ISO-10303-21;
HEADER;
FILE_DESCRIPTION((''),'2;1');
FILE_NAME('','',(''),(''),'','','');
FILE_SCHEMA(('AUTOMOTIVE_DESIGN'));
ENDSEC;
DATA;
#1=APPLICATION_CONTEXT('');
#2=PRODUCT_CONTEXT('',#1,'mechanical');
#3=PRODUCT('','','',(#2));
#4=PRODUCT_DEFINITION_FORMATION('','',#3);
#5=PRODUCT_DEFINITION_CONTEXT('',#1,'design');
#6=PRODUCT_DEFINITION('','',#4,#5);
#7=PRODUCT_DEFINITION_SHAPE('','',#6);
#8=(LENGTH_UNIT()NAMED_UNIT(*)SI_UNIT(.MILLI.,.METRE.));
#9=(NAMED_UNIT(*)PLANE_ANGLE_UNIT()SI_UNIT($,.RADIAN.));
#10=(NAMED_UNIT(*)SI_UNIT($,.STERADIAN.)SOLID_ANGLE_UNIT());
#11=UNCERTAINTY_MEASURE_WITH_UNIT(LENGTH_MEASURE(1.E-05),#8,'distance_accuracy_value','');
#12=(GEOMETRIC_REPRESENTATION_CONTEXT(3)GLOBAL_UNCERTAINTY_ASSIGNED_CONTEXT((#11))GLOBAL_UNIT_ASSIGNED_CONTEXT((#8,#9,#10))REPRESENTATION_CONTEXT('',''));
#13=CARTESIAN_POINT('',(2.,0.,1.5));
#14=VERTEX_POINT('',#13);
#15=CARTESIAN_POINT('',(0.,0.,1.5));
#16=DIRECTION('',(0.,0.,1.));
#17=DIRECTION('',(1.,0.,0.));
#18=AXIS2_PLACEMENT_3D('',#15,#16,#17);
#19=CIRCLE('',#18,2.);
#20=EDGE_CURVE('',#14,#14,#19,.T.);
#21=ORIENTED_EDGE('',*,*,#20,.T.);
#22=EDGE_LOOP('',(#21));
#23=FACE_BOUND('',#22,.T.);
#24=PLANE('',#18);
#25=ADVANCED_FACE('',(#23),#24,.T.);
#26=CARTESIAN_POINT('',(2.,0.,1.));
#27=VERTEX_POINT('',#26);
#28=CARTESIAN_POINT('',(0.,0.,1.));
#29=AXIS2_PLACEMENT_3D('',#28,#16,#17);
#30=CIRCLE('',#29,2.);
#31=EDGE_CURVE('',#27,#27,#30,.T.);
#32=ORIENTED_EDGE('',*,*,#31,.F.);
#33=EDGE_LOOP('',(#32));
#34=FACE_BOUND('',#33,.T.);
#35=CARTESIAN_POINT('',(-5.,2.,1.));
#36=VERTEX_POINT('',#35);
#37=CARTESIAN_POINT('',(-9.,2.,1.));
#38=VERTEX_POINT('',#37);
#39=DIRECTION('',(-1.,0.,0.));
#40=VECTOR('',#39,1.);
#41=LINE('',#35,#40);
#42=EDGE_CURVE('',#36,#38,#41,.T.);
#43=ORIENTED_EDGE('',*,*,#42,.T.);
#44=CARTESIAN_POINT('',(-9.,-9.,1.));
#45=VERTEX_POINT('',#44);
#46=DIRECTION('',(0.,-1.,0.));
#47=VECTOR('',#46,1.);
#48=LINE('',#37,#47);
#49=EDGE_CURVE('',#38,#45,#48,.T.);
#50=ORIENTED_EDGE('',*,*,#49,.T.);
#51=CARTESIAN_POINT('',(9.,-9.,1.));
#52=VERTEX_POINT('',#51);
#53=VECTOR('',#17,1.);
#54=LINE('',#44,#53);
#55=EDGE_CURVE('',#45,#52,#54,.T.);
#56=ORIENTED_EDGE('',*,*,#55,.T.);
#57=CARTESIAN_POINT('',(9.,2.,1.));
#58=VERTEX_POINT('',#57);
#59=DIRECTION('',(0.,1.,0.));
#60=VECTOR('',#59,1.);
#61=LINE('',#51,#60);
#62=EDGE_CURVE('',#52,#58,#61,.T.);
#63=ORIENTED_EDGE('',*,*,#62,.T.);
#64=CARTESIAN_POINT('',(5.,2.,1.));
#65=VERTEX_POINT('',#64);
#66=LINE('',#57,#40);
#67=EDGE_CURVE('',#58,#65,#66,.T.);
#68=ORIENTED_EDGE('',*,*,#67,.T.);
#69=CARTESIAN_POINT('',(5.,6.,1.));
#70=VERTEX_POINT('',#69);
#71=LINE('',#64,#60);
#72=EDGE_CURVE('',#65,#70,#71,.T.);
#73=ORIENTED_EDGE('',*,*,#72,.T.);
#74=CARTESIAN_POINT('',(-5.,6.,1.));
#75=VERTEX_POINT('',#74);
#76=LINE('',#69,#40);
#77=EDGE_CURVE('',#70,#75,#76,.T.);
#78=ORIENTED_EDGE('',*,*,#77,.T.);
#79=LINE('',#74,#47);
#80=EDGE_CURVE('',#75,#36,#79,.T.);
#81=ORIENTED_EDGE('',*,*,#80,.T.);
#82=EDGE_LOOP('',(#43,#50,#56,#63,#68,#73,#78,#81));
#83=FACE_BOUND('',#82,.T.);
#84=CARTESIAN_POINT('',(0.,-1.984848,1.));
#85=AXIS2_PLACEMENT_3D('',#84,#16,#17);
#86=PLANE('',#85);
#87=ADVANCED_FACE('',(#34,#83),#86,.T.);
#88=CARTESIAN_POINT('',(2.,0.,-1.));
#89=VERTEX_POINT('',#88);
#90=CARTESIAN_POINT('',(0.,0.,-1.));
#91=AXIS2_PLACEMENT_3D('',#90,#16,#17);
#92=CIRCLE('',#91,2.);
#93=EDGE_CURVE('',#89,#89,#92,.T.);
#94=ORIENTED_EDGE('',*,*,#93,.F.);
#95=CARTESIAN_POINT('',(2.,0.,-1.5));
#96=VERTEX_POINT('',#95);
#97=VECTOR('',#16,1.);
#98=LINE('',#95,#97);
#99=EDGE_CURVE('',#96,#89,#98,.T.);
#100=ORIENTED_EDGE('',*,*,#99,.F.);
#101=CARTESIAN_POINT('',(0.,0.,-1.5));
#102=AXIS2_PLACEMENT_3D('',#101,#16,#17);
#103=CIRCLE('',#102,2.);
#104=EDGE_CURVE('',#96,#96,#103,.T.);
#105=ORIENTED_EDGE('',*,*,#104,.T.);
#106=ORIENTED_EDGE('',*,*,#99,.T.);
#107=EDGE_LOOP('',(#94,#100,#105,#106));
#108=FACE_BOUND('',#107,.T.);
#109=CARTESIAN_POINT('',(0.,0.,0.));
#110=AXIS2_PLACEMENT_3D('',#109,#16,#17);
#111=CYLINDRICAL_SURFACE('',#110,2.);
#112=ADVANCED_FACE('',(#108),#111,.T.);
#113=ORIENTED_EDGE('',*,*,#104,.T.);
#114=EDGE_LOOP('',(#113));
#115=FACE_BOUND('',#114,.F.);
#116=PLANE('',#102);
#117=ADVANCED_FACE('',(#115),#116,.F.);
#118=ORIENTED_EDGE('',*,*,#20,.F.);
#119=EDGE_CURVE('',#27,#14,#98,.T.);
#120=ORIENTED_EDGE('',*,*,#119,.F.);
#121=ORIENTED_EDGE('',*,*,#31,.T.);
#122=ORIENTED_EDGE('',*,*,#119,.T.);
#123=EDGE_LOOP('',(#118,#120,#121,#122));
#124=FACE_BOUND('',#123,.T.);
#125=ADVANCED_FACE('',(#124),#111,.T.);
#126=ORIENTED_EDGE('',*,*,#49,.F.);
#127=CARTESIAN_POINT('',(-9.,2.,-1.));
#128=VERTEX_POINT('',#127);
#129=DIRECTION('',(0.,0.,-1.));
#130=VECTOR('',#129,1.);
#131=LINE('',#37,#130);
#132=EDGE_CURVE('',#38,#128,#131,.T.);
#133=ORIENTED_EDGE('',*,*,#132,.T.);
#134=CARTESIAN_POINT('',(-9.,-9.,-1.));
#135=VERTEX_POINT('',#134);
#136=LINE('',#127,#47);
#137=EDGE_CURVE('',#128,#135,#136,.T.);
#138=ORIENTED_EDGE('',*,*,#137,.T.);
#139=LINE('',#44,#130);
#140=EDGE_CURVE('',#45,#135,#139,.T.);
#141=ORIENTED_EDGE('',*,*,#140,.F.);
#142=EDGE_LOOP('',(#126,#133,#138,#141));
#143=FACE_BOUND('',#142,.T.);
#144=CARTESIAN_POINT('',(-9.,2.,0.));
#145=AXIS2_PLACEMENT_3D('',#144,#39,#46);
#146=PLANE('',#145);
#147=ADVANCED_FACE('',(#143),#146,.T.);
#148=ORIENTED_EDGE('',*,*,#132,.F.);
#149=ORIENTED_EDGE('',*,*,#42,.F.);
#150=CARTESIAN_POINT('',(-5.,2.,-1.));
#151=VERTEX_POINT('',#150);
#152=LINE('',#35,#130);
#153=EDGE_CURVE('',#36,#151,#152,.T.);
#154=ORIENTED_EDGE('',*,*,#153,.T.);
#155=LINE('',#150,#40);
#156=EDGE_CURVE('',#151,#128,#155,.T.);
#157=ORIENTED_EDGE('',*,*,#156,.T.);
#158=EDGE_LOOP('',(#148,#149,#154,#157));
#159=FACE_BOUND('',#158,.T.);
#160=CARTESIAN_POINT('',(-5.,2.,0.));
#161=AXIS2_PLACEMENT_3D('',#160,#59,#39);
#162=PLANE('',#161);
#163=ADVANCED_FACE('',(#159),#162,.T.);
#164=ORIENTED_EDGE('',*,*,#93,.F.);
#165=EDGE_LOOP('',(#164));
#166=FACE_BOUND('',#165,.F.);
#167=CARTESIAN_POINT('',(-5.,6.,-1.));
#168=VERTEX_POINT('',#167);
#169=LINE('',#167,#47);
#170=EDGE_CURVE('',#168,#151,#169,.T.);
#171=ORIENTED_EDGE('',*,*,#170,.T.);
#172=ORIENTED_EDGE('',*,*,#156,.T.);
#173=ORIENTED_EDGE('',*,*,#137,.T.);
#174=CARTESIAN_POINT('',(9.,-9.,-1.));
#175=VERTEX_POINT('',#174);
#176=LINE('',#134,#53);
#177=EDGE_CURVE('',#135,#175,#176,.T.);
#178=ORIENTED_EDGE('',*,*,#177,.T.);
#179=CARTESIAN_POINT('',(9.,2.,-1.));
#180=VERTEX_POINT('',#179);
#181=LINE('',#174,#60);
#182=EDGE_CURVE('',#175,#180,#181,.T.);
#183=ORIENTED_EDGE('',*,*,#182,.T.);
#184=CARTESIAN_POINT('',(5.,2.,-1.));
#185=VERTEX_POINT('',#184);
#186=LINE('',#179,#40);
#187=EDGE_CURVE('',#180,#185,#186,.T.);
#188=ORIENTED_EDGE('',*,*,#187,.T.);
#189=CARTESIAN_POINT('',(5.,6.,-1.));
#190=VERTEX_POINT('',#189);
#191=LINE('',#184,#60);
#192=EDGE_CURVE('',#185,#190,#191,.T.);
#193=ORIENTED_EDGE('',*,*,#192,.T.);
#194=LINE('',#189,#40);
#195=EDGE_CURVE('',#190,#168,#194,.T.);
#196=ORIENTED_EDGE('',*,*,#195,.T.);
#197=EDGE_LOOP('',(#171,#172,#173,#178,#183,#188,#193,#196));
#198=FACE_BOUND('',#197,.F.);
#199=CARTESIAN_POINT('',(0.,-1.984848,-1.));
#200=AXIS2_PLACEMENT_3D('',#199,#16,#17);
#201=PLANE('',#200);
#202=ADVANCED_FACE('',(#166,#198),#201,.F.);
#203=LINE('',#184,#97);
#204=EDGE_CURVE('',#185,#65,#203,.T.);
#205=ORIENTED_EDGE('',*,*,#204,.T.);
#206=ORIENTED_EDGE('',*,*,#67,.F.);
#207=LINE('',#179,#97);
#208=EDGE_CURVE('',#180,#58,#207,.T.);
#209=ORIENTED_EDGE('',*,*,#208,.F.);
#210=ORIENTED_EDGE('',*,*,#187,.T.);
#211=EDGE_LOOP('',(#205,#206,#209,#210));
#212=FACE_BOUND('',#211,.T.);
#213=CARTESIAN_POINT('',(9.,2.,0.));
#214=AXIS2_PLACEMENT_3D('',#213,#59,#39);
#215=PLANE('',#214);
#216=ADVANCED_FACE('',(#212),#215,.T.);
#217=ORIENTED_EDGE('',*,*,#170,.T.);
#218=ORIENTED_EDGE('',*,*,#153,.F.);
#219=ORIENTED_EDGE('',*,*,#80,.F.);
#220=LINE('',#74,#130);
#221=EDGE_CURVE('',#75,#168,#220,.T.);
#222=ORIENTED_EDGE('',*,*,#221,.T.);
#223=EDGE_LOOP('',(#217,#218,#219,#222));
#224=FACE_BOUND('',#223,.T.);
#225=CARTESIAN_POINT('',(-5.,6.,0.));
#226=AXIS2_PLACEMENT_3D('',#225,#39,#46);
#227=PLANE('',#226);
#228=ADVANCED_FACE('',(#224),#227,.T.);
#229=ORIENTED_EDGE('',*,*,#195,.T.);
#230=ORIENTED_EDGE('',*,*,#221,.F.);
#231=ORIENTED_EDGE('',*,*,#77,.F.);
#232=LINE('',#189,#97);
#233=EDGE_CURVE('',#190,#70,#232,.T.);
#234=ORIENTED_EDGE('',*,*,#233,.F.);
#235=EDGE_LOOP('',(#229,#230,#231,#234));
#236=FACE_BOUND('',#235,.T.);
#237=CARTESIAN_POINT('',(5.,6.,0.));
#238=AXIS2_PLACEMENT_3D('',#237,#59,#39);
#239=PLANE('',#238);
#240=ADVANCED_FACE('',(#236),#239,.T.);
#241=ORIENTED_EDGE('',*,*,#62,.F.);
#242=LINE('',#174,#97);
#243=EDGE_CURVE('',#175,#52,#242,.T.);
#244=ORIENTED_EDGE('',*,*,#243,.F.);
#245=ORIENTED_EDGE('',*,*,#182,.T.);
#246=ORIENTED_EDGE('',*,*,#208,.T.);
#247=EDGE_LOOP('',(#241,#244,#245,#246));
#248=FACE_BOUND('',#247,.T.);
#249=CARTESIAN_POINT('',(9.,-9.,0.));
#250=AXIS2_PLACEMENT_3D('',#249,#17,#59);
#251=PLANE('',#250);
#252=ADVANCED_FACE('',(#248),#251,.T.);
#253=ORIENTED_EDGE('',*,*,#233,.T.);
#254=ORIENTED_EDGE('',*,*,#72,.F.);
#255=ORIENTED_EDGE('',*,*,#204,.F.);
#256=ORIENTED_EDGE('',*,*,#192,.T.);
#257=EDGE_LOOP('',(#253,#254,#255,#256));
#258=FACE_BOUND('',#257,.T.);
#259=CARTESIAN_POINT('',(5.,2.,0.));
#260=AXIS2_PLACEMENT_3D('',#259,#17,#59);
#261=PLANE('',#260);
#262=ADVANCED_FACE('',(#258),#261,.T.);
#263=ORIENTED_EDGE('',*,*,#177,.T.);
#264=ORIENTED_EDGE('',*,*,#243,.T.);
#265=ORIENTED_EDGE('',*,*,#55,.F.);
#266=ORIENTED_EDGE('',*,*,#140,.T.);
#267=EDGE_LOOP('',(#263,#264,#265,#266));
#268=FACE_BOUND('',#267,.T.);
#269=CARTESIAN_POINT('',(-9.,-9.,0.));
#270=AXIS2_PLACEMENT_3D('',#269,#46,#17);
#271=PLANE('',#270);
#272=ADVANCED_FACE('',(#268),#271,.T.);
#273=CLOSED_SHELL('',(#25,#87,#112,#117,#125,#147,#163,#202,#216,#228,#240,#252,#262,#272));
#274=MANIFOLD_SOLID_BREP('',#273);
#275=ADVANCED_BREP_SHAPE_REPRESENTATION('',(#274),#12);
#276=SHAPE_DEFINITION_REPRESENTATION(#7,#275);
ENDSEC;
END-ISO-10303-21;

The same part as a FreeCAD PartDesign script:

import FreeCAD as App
import Part
import Sketcher

doc = App.newDocument("Part")
body = doc.addObject("PartDesign::Body", "Body")

# Sketch on XY plane
sketch1 = body.newObject("Sketcher::SketchObject", "Sketch")
sketch1.AttachmentSupport = (doc.getObject("XY_Plane"), [""])
sketch1.MapMode = "FlatFace"
sketch1.addGeometry([
    Part.LineSegment(App.Vector(-9, -9, 0), App.Vector(9, -9, 0)),  # 0
    Part.LineSegment(App.Vector(9, -9, 0), App.Vector(9, 2, 0)),  # 1
    Part.LineSegment(App.Vector(9, 2, 0), App.Vector(5, 2, 0)),  # 2
    Part.LineSegment(App.Vector(5, 2, 0), App.Vector(5, 6, 0)),  # 3
    Part.LineSegment(App.Vector(5, 6, 0), App.Vector(-5, 6, 0)),  # 4
    Part.LineSegment(App.Vector(-5, 6, 0), App.Vector(-5, 2, 0)),  # 5
    Part.LineSegment(App.Vector(-5, 2, 0), App.Vector(-9, 2, 0)),  # 6
    Part.LineSegment(App.Vector(-9, 2, 0), App.Vector(-9, -9, 0)),  # 7
    Part.Circle(App.Vector(0, 0, 0), App.Vector(0, 0, 1), 2),  # 8
], False)
sketch1.addConstraint([
    Sketcher.Constraint("Coincident", 0, 2, 1, 1),
    Sketcher.Constraint("Coincident", 1, 2, 2, 1),
    Sketcher.Constraint("Coincident", 2, 2, 3, 1),
    Sketcher.Constraint("Coincident", 3, 2, 4, 1),
    Sketcher.Constraint("Coincident", 4, 2, 5, 1),
    Sketcher.Constraint("Coincident", 5, 2, 6, 1),
    Sketcher.Constraint("Coincident", 6, 2, 7, 1),
    Sketcher.Constraint("Coincident", 7, 2, 0, 1),
    Sketcher.Constraint("Horizontal", 0),
    Sketcher.Constraint("Vertical", 1),
    Sketcher.Constraint("Horizontal", 2),
    Sketcher.Constraint("Vertical", 3),
    Sketcher.Constraint("Horizontal", 4),
    Sketcher.Constraint("Vertical", 5),
    Sketcher.Constraint("Horizontal", 6),
    Sketcher.Constraint("Vertical", 7),
    Sketcher.Constraint("Coincident", 8, 3, -1, 1),
    Sketcher.Constraint("Symmetric", 2, 2, 5, 2, -2),
    Sketcher.Constraint("Equal", 2, 6),
    Sketcher.Constraint("Equal", 6, 3),
    Sketcher.Constraint("Diameter", 8, 4.0),
    Sketcher.Constraint("DistanceX", 0, 1, 0, 2, 18.0),
    Sketcher.Constraint("DistanceX", 2, 2, 2, 1, 4.0),
    Sketcher.Constraint("DistanceY", 1, 1, 1, 2, 11.0),
    Sketcher.Constraint("DistanceY", 0, 2, -1, 1, 9.0),
])
pad1 = body.newObject("PartDesign::Pad", "Pad")
pad1.Profile = sketch1
pad1.Length = 2
pad1.Midplane = True

# Sketch on XY plane
sketch2 = body.newObject("Sketcher::SketchObject", "Sketch001")
sketch2.AttachmentSupport = (doc.getObject("XY_Plane"), [""])
sketch2.MapMode = "FlatFace"
sketch2.addGeometry(Part.Circle(App.Vector(0, 0, 0), App.Vector(0, 0, 1), 2), False)
sketch2.addConstraint([
    Sketcher.Constraint("Coincident", 0, 3, -1, 1),
    Sketcher.Constraint("Diameter", 0, 4.0),
])
pad2 = body.newObject("PartDesign::Pad", "Pad001")
pad2.Profile = sketch2
pad2.Length = 3
pad2.Midplane = True

doc.recompute()
